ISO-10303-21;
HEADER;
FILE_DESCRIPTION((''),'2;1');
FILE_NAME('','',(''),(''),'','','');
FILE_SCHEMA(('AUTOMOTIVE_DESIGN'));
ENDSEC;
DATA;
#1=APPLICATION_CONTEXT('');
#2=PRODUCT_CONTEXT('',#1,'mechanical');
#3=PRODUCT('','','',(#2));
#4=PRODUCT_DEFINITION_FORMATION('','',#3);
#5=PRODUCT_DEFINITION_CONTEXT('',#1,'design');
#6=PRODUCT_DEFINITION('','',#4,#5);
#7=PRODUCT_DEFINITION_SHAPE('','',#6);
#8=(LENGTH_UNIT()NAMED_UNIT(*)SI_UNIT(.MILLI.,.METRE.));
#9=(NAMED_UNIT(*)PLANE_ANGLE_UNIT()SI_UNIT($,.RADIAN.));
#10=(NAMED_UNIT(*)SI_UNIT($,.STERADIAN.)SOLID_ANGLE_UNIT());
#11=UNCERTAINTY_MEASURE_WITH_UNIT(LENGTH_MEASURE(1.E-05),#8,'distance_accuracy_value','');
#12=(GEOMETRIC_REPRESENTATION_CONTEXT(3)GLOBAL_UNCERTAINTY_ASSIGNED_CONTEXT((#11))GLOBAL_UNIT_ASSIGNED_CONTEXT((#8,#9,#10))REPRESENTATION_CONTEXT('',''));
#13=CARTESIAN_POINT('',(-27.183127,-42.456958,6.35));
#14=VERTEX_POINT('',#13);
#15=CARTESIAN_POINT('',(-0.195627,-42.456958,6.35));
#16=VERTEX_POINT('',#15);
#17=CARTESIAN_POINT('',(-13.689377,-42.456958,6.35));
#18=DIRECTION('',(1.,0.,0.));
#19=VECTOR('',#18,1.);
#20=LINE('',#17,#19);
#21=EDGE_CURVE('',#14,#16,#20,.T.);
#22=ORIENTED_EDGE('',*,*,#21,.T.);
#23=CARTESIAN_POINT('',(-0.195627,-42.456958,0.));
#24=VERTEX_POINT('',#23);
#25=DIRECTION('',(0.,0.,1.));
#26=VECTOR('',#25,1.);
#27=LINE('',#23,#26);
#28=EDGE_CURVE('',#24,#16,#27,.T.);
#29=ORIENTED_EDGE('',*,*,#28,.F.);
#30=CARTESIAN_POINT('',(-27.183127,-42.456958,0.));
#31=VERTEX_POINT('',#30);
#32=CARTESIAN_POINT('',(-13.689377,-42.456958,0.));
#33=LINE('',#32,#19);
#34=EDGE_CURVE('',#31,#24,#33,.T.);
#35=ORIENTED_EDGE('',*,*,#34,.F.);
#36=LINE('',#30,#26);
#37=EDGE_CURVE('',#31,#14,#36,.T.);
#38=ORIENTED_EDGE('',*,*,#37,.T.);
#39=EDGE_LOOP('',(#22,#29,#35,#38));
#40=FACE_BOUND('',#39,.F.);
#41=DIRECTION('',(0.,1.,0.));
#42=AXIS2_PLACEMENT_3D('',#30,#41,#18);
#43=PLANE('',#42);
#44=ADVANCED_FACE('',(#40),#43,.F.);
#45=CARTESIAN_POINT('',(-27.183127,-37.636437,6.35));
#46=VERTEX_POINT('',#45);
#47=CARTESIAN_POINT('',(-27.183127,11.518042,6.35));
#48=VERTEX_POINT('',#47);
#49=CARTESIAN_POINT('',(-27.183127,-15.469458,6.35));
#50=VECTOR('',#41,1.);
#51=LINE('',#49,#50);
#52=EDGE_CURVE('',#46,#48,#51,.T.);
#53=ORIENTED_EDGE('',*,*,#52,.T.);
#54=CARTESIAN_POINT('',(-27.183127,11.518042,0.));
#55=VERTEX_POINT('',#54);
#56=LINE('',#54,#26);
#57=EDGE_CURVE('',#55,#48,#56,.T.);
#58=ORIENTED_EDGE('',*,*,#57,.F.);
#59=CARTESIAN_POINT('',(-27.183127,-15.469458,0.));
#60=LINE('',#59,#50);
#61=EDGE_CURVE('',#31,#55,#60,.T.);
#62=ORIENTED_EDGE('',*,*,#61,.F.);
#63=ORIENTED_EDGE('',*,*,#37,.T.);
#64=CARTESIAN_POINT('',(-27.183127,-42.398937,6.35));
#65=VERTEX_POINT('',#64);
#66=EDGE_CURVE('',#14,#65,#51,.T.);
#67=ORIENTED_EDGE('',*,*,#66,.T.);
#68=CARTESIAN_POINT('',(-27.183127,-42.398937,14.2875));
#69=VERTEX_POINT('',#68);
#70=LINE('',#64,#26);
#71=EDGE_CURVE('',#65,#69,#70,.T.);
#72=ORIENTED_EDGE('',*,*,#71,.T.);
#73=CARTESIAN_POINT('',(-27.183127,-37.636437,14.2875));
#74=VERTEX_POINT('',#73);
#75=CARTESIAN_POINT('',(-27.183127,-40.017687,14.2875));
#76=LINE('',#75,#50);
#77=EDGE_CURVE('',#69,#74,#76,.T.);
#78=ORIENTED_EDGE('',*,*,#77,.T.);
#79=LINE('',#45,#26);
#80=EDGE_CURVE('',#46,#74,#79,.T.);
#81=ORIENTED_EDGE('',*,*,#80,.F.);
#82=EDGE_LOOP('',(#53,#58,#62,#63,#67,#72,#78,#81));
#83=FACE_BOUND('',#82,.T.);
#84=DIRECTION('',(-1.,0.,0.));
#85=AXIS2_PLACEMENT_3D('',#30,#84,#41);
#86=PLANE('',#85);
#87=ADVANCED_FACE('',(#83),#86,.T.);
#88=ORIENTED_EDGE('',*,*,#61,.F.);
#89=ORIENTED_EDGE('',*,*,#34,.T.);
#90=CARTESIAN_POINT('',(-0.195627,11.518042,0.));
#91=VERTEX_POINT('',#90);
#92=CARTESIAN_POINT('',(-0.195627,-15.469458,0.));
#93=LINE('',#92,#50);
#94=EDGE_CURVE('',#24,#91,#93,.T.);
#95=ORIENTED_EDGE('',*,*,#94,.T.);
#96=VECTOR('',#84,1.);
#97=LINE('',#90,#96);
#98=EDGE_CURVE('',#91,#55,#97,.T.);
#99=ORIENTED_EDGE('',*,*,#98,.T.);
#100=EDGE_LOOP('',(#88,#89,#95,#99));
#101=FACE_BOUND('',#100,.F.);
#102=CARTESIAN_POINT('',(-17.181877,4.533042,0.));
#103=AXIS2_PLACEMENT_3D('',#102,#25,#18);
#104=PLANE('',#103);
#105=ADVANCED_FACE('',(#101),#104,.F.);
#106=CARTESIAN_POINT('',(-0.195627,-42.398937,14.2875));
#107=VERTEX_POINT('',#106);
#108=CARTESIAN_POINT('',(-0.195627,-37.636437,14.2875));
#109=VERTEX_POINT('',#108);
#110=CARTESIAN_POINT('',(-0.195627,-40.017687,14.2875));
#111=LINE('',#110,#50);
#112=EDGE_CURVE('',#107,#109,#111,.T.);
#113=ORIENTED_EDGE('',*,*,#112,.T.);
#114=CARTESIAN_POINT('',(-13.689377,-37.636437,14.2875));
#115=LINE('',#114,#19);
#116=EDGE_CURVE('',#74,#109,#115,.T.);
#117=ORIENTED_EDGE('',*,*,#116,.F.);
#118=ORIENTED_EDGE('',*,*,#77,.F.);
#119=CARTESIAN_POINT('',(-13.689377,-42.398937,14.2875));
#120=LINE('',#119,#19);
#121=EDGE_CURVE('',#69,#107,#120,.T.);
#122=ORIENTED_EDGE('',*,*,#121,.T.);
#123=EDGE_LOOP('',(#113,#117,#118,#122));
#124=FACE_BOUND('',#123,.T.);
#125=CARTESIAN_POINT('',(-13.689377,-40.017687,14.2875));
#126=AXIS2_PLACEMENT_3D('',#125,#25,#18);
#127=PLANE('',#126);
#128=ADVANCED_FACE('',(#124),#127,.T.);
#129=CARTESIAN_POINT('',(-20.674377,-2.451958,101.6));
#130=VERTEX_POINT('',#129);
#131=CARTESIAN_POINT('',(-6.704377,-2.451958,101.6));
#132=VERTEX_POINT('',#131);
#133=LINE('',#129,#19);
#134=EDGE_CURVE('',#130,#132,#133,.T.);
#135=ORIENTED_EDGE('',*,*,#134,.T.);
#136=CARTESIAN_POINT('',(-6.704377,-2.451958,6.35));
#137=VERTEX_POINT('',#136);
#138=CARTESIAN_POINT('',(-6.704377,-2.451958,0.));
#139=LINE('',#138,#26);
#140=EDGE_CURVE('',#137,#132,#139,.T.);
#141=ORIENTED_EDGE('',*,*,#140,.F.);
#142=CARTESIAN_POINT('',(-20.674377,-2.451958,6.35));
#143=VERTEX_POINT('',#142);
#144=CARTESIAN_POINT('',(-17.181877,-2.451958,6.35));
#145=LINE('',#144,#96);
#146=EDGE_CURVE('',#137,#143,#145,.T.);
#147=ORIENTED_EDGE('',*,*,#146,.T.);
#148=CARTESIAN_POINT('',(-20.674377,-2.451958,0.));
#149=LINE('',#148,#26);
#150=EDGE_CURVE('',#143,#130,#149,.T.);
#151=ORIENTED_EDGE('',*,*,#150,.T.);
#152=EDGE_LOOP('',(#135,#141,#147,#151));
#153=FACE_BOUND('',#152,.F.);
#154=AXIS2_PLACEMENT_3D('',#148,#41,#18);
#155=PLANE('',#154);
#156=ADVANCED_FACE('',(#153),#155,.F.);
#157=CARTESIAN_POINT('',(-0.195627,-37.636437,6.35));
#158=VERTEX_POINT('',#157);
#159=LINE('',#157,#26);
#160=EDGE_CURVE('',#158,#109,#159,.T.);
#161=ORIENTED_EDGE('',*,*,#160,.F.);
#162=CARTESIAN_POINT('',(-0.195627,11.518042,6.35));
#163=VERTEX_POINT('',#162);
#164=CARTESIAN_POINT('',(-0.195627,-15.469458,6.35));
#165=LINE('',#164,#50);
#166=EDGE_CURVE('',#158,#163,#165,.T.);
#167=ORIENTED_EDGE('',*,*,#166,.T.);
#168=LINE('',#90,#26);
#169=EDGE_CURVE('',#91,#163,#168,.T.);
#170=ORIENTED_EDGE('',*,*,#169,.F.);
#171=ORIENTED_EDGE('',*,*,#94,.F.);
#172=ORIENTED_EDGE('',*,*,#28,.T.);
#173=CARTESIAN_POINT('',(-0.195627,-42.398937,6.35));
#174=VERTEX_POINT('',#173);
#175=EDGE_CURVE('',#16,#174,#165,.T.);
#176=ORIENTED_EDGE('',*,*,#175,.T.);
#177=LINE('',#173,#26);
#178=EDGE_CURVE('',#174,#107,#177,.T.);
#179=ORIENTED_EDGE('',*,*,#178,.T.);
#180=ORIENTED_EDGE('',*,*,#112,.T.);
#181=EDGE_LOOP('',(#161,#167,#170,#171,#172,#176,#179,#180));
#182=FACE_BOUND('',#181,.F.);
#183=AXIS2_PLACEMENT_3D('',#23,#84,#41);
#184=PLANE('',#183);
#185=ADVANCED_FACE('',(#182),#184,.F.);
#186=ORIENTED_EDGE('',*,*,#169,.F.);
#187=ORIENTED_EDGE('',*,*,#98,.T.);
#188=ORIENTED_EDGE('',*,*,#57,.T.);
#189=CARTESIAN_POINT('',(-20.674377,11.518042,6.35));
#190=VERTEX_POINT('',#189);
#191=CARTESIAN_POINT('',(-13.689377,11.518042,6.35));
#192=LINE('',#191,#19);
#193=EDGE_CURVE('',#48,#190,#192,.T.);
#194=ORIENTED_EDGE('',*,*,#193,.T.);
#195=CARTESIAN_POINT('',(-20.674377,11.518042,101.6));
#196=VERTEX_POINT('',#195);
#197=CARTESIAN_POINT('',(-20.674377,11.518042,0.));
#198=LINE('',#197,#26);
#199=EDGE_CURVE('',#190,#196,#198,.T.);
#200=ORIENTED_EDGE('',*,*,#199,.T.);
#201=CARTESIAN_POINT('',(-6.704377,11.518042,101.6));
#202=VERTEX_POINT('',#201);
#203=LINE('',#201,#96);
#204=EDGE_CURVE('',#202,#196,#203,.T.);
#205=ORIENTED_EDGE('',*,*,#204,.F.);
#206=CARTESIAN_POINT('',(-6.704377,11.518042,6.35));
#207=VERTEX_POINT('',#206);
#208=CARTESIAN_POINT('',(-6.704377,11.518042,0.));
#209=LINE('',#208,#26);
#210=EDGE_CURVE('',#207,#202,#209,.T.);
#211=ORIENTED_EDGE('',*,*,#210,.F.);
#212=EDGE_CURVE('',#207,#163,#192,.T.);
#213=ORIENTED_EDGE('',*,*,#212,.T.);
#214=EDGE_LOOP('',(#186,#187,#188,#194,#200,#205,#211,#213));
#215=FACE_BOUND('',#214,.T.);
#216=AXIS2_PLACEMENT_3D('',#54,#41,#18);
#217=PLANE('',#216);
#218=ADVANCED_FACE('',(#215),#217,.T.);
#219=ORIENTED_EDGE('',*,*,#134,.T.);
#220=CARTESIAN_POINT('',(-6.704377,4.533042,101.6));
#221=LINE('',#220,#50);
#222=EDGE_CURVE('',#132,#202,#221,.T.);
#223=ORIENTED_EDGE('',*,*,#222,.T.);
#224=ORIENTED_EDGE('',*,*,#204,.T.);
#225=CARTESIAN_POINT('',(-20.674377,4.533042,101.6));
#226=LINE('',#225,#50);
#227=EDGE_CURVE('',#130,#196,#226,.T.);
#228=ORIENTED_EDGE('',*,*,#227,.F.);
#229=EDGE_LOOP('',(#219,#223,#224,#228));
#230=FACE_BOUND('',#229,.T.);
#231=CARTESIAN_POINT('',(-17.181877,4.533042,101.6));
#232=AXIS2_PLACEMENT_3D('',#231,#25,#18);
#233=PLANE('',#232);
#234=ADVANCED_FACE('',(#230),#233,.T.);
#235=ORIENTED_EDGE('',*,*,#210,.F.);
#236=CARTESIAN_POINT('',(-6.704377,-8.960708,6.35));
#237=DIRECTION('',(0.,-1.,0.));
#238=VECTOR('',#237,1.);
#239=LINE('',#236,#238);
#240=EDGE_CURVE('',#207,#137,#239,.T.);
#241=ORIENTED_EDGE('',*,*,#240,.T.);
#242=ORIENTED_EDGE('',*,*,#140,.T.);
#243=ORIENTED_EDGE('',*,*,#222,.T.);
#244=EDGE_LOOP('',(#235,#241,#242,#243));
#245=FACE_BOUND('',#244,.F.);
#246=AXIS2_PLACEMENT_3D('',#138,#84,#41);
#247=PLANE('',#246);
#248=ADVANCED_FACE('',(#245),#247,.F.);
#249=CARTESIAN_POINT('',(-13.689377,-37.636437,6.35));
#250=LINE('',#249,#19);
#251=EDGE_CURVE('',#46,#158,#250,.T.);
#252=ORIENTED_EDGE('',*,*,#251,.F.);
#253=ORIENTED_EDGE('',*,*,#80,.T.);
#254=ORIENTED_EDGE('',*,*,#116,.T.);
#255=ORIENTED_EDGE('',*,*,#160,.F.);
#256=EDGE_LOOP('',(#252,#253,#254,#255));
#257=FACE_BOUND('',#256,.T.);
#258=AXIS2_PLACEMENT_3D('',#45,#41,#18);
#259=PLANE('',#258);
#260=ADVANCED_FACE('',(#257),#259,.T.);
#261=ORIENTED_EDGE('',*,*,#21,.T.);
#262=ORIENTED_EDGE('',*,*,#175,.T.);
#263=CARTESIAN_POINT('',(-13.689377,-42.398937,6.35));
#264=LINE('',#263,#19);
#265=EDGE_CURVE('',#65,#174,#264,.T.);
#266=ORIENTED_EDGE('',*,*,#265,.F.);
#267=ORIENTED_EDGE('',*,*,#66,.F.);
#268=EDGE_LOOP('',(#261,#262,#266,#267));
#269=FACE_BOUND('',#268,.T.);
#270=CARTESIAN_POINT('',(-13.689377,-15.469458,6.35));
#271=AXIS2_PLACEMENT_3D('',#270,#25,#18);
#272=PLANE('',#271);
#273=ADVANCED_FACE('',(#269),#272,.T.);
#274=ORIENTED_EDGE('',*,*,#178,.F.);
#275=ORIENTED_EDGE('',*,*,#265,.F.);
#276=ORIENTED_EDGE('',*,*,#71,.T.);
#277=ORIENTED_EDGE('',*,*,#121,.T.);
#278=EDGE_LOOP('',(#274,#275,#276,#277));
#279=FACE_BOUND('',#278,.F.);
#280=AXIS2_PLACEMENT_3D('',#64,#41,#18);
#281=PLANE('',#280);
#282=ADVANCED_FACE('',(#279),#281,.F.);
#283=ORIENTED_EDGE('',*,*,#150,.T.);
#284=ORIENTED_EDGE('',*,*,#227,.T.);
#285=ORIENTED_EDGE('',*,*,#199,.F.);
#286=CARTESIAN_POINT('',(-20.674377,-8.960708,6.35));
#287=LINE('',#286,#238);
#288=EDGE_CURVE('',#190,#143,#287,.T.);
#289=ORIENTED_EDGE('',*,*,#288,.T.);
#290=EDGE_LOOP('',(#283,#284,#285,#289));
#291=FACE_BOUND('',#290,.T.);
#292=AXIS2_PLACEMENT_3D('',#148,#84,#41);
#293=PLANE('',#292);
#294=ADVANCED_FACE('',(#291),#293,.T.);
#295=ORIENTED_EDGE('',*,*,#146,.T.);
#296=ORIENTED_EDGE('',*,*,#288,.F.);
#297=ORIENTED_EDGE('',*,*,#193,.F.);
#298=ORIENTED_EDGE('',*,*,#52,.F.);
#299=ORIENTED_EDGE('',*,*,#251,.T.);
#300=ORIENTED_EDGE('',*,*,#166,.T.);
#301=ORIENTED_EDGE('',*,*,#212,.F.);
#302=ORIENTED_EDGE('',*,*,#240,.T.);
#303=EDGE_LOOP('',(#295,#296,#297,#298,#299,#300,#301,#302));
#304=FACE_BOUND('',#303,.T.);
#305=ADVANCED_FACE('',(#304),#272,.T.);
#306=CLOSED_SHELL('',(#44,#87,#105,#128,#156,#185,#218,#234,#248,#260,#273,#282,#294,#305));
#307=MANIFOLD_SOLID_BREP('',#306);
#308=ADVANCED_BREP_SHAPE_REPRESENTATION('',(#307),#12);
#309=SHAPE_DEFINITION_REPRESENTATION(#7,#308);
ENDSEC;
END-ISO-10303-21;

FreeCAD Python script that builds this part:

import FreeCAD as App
import Part
import Sketcher
from FreeCAD import Vector
Q = App.Units.Quantity

doc = App.newDocument("Part")
body = doc.addObject("PartDesign::Body", "Body")

# Sketch on XY plane
sketch1 = body.newObject("Sketcher::SketchObject", "Sketch")
sketch1.AttachmentSupport = (doc.getObject("XY_Plane"), [""])
sketch1.MapMode = "FlatFace"
sketch1.addGeometry(Part.LineSegment(Vector(-27, 12, 0), Vector(-27, -42, 0)), False)
sketch1.addGeometry(Part.LineSegment(Vector(-27, -42, 0), Vector(0, -42, 0)), False)
sketch1.addGeometry(Part.LineSegment(Vector(0, -42, 0), Vector(0, 12, 0)), False)
sketch1.addGeometry(Part.LineSegment(Vector(0, 12, 0), Vector(-27, 12, 0)), False)
sketch1.addConstraint(Sketcher.Constraint("Coincident", 0, 2, 1, 1))
sketch1.addConstraint(Sketcher.Constraint("Coincident", 1, 2, 2, 1))
sketch1.addConstraint(Sketcher.Constraint("Coincident", 2, 2, 3, 1))
sketch1.addConstraint(Sketcher.Constraint("Coincident", 3, 2, 0, 1))
sketch1.addConstraint(Sketcher.Constraint("Vertical", 0))
sketch1.addConstraint(Sketcher.Constraint("Horizontal", 1))
sketch1.addConstraint(Sketcher.Constraint("Vertical", 2))
sketch1.addConstraint(Sketcher.Constraint("Horizontal", 3))
sketch1.addConstraint(Sketcher.Constraint("DistanceX", 1, 1, 1, 2, Q("1.0625 in")))
sketch1.addConstraint(Sketcher.Constraint("DistanceY", 0, 2, 0, 1, Q("2.125 in")))
sketch1.addConstraint(Sketcher.Constraint("DistanceY", 0, 2, -1, 1, Q("42.456958 mm")))
sketch1.addConstraint(Sketcher.Constraint("DistanceX", 0, 2, -1, 1, Q("27.183127 mm")))
pad1 = body.newObject("PartDesign::Pad", "Pad")
pad1.Profile = sketch1
pad1.Length = Q("0.25 in")

# Sketch on XY plane
sketch2 = body.newObject("Sketcher::SketchObject", "Sketch001")
sketch2.AttachmentSupport = (doc.getObject("XY_Plane"), [""])
sketch2.MapMode = "FlatFace"
sketch2.AttachmentOffset = App.Placement(Vector(0, 0, 0.25 * 25.4), App.Rotation())
sketch2.addGeometry(Part.LineSegment(Vector(-27.2, -37.6, 0), Vector(-27.2, -42.4, 0)), False)
sketch2.addGeometry(Part.LineSegment(Vector(-27.2, -42.4, 0), Vector(-0.2, -42.4, 0)), False)
sketch2.addGeometry(Part.LineSegment(Vector(-0.2, -42.4, 0), Vector(-0.2, -37.6, 0)), False)
sketch2.addGeometry(Part.LineSegment(Vector(-0.2, -37.6, 0), Vector(-27.2, -37.6, 0)), False)
sketch2.addConstraint(Sketcher.Constraint("Coincident", 0, 2, 1, 1))
sketch2.addConstraint(Sketcher.Constraint("Coincident", 1, 2, 2, 1))
sketch2.addConstraint(Sketcher.Constraint("Coincident", 2, 2, 3, 1))
sketch2.addConstraint(Sketcher.Constraint("Coincident", 3, 2, 0, 1))
sketch2.addConstraint(Sketcher.Constraint("Vertical", 0))
sketch2.addConstraint(Sketcher.Constraint("Horizontal", 1))
sketch2.addConstraint(Sketcher.Constraint("Vertical", 2))
sketch2.addConstraint(Sketcher.Constraint("Horizontal", 3))
sketch2.addConstraint(Sketcher.Constraint("DistanceX", 1, 1, 1, 2, Q("1.0625 in")))
sketch2.addConstraint(Sketcher.Constraint("DistanceY", 0, 2, 0, 1, Q("0.1875 in")))
sketch2.addConstraint(Sketcher.Constraint("DistanceX", 0, 2, -1, 1, Q("27.183127 mm")))
sketch2.addConstraint(Sketcher.Constraint("DistanceY", 0, 2, -1, 1, Q("42.398937 mm")))
pad2 = body.newObject("PartDesign::Pad", "Pad001")
pad2.Profile = sketch2
pad2.Length = Q("0.3125 in")

# Sketch on XY plane
sketch3 = body.newObject("Sketcher::SketchObject", "Sketch002")
sketch3.AttachmentSupport = (doc.getObject("XY_Plane"), [""])
sketch3.MapMode = "FlatFace"
sketch3.addGeometry(Part.LineSegment(Vector(-21, 12, 0), Vector(-21, -2, 0)), False)
sketch3.addGeometry(Part.LineSegment(Vector(-21, -2, 0), Vector(-7, -2, 0)), False)
sketch3.addGeometry(Part.LineSegment(Vector(-7, -2, 0), Vector(-7, 12, 0)), False)
sketch3.addGeometry(Part.LineSegment(Vector(-7, 12, 0), Vector(-21, 12, 0)), False)
sketch3.addConstraint(Sketcher.Constraint("Coincident", 0, 2, 1, 1))
sketch3.addConstraint(Sketcher.Constraint("Coincident", 1, 2, 2, 1))
sketch3.addConstraint(Sketcher.Constraint("Coincident", 2, 2, 3, 1))
sketch3.addConstraint(Sketcher.Constraint("Coincident", 3, 2, 0, 1))
sketch3.addConstraint(Sketcher.Constraint("Vertical", 0))
sketch3.addConstraint(Sketcher.Constraint("Horizontal", 1))
sketch3.addConstraint(Sketcher.Constraint("Vertical", 2))
sketch3.addConstraint(Sketcher.Constraint("Horizontal", 3))
sketch3.addConstraint(Sketcher.Constraint("Equal", 3, 0))
sketch3.addConstraint(Sketcher.Constraint("DistanceX", 1, 1, 1, 2, Q("0.55 in")))
sketch3.addConstraint(Sketcher.Constraint("DistanceY", 0, 2, -1, 1, Q("2.451958 mm")))
sketch3.addConstraint(Sketcher.Constraint("DistanceX", 0, 2, -1, 1, Q("20.674377 mm")))
pad3 = body.newObject("PartDesign::Pad", "Pad002")
pad3.Profile = sketch3
pad3.Length = Q("4 in")

doc.recompute()
